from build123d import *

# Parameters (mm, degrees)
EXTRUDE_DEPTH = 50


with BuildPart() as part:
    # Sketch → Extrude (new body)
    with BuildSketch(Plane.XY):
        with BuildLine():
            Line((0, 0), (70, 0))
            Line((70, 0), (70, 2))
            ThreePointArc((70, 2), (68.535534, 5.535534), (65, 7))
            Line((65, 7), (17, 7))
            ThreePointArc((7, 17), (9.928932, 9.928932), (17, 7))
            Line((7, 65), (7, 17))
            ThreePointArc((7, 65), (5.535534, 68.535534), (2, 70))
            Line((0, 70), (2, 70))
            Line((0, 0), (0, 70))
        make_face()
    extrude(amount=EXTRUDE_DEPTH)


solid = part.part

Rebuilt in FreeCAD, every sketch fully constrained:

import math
import FreeCAD as App
import Part
import Sketcher
from FreeCAD import Vector

doc = App.newDocument("Part")
body = doc.addObject("PartDesign::Body", "Body")

sketch1 = doc.addObject("Sketcher::SketchObject", "Sketch")
body.addObject(sketch1)
sketch1.AttachmentSupport = (doc.XY_Plane, [""])
sketch1.MapMode = "FlatFace"
sketch1.addGeometry([
    Part.LineSegment(Vector(0, 0, 0), Vector(70, 0, 0)),
    Part.LineSegment(Vector(70, 0, 0), Vector(70, 2, 0)),
    Part.ArcOfCircle(Part.Circle(Vector(65, 2, 0), Vector(0, 0, 1), 5), math.radians(0), math.radians(90)),
    Part.LineSegment(Vector(65, 7, 0), Vector(17, 7, 0)),
    Part.ArcOfCircle(Part.Circle(Vector(17, 17, 0), Vector(0, 0, 1), 10), math.radians(180), math.radians(270)),
    Part.LineSegment(Vector(7, 17, 0), Vector(7, 65, 0)),
    Part.ArcOfCircle(Part.Circle(Vector(2, 65, 0), Vector(0, 0, 1), 5), math.radians(0), math.radians(90)),
    Part.LineSegment(Vector(2, 70, 0), Vector(0, 70, 0)),
    Part.LineSegment(Vector(0, 70, 0), Vector(0, 0, 0)),
], False)
sketch1.addConstraint([
    Sketcher.Constraint("Coincident", 0, 2, 1, 1),
    Sketcher.Constraint("Tangent", 1, 2, 2, 1),
    Sketcher.Constraint("Tangent", 2, 2, 3, 1),
    Sketcher.Constraint("Tangent", 3, 2, 4, 2),
    Sketcher.Constraint("Tangent", 4, 1, 5, 1),
    Sketcher.Constraint("Tangent", 5, 2, 6, 1),
    Sketcher.Constraint("Tangent", 6, 2, 7, 1),
    Sketcher.Constraint("Coincident", 7, 2, 8, 1),
    Sketcher.Constraint("Coincident", 8, 2, 0, 1),
    Sketcher.Constraint("Horizontal", 0),
    Sketcher.Constraint("Vertical", 1),
    Sketcher.Constraint("Horizontal", 3),
    Sketcher.Constraint("Vertical", 5),
    Sketcher.Constraint("Horizontal", 7),
    Sketcher.Constraint("Vertical", 8),
    Sketcher.Constraint("Coincident", 8, 2, -1, 1),
    Sketcher.Constraint("Equal", 2, 6),
    Sketcher.Constraint("Equal", 7, 1),
    Sketcher.Constraint("Equal", 3, 5),
    Sketcher.Constraint("Radius", 2, 5.0),
    Sketcher.Constraint("Radius", 4, 9.999999),
    Sketcher.Constraint("DistanceX", 0, 1, 0, 2, 70.0),
    Sketcher.Constraint("DistanceX", 3, 2, 3, 1, 48.0),
])
pad1 = doc.addObject("PartDesign::Pad", "Pad")
body.addObject(pad1)
pad1.Profile = sketch1
pad1.Length = 50

doc.recompute()
